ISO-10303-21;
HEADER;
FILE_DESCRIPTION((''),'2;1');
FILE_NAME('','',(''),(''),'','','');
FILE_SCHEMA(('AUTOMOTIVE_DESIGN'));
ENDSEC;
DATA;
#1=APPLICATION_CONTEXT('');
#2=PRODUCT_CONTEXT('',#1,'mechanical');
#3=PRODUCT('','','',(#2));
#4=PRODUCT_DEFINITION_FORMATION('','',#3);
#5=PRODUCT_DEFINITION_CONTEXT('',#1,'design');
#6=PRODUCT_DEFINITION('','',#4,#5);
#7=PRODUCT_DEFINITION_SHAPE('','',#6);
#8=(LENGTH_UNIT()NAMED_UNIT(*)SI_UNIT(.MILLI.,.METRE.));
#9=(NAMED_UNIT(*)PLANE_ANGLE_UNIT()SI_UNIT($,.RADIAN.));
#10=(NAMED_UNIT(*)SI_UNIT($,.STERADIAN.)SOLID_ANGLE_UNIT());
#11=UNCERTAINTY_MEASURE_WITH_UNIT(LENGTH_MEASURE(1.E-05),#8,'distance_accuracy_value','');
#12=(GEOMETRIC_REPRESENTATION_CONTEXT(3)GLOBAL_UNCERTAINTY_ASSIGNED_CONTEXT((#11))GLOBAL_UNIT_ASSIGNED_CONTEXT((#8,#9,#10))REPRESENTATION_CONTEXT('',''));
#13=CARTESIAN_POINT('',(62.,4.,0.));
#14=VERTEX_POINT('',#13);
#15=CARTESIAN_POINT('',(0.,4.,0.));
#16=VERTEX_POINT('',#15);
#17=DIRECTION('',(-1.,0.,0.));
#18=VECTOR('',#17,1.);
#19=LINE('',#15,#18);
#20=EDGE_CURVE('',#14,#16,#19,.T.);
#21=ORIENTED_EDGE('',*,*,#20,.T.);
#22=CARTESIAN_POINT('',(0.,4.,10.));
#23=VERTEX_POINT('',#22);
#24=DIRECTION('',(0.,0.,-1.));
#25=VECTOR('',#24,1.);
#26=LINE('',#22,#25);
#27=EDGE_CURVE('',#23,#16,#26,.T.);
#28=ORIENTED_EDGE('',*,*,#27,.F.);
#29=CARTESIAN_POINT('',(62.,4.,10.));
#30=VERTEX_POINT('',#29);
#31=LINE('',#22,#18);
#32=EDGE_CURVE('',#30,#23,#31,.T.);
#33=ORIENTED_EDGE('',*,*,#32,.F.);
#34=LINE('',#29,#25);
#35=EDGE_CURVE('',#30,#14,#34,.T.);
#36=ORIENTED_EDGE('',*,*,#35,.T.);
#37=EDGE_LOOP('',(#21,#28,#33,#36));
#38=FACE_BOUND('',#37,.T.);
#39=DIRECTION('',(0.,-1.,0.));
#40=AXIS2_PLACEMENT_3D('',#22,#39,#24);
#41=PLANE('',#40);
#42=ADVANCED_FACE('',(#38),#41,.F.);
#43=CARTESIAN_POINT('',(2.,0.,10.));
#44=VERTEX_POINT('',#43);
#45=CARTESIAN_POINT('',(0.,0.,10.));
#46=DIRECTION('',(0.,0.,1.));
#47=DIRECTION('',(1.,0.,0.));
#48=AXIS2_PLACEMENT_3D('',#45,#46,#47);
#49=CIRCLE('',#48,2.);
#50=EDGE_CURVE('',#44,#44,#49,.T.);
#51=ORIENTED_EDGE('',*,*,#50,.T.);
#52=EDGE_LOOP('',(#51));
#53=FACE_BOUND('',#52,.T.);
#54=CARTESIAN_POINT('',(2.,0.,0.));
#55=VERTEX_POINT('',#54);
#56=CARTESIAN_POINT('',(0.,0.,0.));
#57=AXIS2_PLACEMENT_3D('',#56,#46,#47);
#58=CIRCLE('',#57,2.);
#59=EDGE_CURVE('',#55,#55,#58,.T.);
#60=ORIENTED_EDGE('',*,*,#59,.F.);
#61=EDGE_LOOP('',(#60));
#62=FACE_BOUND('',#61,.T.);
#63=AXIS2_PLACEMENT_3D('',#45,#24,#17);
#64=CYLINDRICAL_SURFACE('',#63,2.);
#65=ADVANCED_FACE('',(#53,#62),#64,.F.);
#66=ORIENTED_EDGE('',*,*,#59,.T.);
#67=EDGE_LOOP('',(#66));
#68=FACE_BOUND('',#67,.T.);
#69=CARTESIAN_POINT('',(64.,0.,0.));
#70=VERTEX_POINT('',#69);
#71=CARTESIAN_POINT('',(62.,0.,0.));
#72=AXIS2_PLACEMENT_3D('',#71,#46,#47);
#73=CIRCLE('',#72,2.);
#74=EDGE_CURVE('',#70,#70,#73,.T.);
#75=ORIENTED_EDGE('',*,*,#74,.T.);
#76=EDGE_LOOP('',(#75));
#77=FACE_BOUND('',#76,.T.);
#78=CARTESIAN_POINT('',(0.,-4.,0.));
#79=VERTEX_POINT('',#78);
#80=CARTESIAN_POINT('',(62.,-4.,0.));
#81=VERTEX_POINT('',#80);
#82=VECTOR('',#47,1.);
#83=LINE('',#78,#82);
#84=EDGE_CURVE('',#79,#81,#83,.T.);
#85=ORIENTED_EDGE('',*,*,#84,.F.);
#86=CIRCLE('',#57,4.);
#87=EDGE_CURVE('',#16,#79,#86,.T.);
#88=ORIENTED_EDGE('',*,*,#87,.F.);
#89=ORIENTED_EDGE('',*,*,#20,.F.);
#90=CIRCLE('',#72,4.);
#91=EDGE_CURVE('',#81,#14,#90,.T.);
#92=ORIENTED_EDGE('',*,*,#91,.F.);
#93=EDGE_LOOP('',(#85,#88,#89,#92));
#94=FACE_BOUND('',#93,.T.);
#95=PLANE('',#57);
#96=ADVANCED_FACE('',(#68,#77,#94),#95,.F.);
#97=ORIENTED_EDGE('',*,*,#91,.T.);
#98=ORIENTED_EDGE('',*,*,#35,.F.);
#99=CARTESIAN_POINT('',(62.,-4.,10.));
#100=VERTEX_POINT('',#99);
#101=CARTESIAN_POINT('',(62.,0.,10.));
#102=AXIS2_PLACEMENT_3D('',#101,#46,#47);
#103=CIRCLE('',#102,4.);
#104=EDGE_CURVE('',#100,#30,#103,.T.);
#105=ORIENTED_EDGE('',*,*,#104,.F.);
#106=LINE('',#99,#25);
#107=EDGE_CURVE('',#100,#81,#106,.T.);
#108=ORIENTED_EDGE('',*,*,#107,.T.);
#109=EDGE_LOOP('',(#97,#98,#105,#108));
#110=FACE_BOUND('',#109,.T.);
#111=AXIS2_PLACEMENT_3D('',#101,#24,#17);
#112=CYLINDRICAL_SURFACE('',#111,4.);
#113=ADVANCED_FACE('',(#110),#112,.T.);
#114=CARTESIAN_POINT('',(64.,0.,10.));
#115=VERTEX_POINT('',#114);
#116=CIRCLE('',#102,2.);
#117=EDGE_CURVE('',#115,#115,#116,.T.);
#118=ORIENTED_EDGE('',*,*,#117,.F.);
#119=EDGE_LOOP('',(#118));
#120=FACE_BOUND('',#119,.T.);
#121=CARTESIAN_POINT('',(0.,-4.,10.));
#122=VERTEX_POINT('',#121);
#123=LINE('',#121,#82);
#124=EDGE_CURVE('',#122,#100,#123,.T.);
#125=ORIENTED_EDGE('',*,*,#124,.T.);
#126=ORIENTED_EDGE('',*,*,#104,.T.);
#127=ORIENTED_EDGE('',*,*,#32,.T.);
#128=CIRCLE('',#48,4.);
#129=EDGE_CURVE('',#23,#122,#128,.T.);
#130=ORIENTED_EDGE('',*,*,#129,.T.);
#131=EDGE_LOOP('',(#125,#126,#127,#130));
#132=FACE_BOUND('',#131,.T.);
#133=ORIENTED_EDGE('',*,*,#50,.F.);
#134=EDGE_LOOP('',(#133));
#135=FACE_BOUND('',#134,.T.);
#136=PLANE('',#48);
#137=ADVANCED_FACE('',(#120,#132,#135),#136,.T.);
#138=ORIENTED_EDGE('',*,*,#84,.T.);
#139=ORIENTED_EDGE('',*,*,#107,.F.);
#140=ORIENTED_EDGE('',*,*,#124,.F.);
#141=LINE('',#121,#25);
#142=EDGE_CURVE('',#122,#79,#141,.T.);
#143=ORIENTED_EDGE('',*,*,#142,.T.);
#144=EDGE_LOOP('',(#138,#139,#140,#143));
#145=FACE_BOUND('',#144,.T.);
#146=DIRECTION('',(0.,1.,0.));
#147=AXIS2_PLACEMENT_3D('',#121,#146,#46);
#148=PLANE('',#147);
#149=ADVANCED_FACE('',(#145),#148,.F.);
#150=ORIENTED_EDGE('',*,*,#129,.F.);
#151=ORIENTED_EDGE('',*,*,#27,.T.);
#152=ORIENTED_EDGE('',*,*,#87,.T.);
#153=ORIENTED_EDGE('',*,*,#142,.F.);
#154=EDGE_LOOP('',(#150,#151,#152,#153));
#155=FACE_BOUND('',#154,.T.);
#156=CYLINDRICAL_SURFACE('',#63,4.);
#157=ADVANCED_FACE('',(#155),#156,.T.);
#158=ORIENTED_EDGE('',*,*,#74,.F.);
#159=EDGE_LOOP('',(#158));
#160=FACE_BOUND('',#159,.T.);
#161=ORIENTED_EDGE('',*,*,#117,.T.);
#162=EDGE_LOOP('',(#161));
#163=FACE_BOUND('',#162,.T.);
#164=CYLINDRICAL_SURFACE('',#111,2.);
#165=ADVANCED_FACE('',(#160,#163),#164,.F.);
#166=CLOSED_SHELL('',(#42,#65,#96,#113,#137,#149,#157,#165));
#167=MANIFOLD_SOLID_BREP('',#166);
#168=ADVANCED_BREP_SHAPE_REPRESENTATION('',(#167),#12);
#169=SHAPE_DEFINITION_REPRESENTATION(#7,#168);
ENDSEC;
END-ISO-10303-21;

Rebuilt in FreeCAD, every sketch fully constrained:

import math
import FreeCAD as App
import Part
import Sketcher

V = App.Vector

doc = App.newDocument("Part")
params = doc.addObject("Spreadsheet::Sheet", "Params")
for row, (alias, value) in enumerate([
    ("sketch1_diameter", "4 mm"),
    ("sketch1_radius", "4 mm"),
    ("sketch1_width", "62 mm"),
    ("pad1_length", "10 mm"),
], start=1):
    params.set(f"A{row}", alias)
    params.set(f"B{row}", "=" + value)
    params.setAlias(f"B{row}", alias)

body = doc.addObject("PartDesign::Body", "Body")

# Sketch on XY plane
sketch1 = body.newObject("Sketcher::SketchObject", "Sketch")
sketch1.AttachmentSupport = (doc.getObject("XY_Plane"), [""])
sketch1.MapMode = "FlatFace"
sketch1.addGeometry(Part.LineSegment(V(62, 4, 0), V(0, 4, 0)), False)
sketch1.addGeometry(Part.ArcOfCircle(Part.Circle(V(0, 0, 0), V(0, 0, 1), 4), math.radians(90), math.radians(270)), False)
sketch1.addGeometry(Part.LineSegment(V(0, -4, 0), V(62, -4, 0)), False)
sketch1.addGeometry(Part.ArcOfCircle(Part.Circle(V(62, 0, 0), V(0, 0, 1), 4), math.radians(-90), math.radians(90)), False)
sketch1.addGeometry(Part.Circle(V(62, 0, 0), V(0, 0, 1), 2), False)
sketch1.addGeometry(Part.Circle(V(0, 0, 0), V(0, 0, 1), 2), False)
sketch1.addConstraint(Sketcher.Constraint("Tangent", 0, 2, 1, 1))
sketch1.addConstraint(Sketcher.Constraint("Tangent", 1, 2, 2, 1))
sketch1.addConstraint(Sketcher.Constraint("Tangent", 2, 2, 3, 1))
sketch1.addConstraint(Sketcher.Constraint("Tangent", 3, 2, 0, 1))
sketch1.addConstraint(Sketcher.Constraint("Horizontal", 0))
sketch1.addConstraint(Sketcher.Constraint("Horizontal", 2))
sketch1.addConstraint(Sketcher.Constraint("Coincident", 1, 3, -1, 1))
sketch1.addConstraint(Sketcher.Constraint("Coincident", 5, 3, -1, 1))
sketch1.addConstraint(Sketcher.Constraint("Coincident", 4, 3, 3, 3))
sketch1.addConstraint(Sketcher.Constraint("Equal", 4, 5))
sketch1.addConstraint(Sketcher.Constraint("Diameter", 4, 4.0))
sketch1.addConstraint(Sketcher.Constraint("Radius", 1, 4.0))
sketch1.addConstraint(Sketcher.Constraint("DistanceX", 0, 2, 0, 1, 62.0))
sketch1.setExpression("Constraints[10]", "Params.sketch1_diameter")
sketch1.setExpression("Constraints[11]", "Params.sketch1_radius")
sketch1.setExpression("Constraints[12]", "Params.sketch1_width")
pad1 = body.newObject("PartDesign::Pad", "Pad")
pad1.Profile = sketch1
pad1.setExpression("Length", "Params.pad1_length")

doc.recompute()
